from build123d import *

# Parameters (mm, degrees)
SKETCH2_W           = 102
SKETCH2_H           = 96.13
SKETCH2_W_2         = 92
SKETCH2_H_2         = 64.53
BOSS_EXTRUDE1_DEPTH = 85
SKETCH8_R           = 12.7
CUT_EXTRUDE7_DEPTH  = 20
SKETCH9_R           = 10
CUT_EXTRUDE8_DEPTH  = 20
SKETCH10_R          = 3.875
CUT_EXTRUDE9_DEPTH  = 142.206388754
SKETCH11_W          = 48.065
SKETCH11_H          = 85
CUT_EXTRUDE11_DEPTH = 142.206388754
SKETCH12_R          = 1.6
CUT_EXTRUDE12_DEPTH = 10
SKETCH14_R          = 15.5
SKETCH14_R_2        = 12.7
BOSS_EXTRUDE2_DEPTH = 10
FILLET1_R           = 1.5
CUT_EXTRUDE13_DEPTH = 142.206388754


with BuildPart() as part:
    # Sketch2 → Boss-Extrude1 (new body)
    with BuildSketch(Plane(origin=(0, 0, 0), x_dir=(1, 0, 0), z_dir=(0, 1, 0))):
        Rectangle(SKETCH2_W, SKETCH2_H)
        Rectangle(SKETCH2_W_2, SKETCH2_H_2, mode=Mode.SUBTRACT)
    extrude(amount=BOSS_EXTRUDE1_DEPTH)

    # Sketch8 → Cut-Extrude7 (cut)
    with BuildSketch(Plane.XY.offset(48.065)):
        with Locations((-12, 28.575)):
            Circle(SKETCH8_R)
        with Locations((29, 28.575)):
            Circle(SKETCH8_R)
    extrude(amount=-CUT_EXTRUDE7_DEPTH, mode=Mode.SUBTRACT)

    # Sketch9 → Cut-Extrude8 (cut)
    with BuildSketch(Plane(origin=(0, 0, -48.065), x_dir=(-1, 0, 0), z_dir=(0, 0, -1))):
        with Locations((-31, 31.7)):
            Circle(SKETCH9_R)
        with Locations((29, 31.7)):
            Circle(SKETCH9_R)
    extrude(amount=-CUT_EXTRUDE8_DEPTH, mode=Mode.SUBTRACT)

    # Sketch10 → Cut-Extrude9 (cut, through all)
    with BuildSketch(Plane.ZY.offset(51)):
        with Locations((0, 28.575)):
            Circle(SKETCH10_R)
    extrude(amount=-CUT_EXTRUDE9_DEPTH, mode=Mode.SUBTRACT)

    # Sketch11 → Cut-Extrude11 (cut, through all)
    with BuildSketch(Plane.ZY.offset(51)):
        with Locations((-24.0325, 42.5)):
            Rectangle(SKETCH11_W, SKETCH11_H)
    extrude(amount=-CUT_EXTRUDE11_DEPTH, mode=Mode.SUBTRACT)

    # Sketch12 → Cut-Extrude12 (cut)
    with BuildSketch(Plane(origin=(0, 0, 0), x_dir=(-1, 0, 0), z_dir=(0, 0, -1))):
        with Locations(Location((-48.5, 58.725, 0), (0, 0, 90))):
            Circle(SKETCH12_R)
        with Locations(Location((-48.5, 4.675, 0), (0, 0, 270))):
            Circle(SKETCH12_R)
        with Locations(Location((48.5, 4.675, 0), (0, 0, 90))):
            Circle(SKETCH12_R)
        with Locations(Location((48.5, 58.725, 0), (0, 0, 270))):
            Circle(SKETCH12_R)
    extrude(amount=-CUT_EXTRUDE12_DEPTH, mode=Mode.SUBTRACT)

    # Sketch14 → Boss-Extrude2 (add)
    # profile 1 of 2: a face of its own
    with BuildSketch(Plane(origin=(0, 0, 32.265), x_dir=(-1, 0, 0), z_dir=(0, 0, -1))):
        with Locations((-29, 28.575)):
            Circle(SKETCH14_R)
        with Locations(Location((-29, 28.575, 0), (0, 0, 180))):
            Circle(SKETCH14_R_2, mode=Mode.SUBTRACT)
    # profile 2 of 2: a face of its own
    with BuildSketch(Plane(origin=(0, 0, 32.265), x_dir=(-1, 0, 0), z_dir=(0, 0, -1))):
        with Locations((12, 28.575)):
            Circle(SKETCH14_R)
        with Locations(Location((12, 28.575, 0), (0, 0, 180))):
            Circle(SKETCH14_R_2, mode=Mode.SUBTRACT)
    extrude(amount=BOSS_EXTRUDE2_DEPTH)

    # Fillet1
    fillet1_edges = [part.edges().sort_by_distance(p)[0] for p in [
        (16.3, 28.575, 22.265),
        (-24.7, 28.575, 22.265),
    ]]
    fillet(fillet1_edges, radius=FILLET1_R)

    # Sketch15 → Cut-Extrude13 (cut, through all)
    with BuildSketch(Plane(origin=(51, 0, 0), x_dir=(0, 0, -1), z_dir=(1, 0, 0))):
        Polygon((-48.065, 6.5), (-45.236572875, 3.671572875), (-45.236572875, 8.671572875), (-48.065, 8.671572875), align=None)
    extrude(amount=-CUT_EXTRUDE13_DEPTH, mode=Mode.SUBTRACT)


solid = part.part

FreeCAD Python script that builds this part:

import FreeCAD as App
import Part
import Sketcher
from FreeCAD import Vector
Q = App.Units.Quantity


def edges_at(feature, points):
    """Names of the edges that pass closest to the given points."""
    edges = feature.Shape.Edges
    near = lambda p: min(range(len(edges)), key=lambda i: edges[i].distToShape(Part.Vertex(*p))[0])
    return sorted({f"Edge{near(p) + 1}" for p in points})

doc = App.newDocument("Part")
body = doc.addObject("PartDesign::Body", "Body")

sketch1 = body.newObject("Sketcher::SketchObject", "Sketch")
sketch1.AttachmentSupport = (doc.getObject("XZ_Plane"), [""])
sketch1.MapMode = "FlatFace"
sketch1.addGeometry(Part.LineSegment(Vector(-51, -48.065, 0), Vector(-51, 48.065, 0)), False)
sketch1.addGeometry(Part.LineSegment(Vector(-51, 48.065, 0), Vector(51, 48.065, 0)), False)
sketch1.addGeometry(Part.LineSegment(Vector(51, 48.065, 0), Vector(51, -48.065, 0)), False)
sketch1.addGeometry(Part.LineSegment(Vector(51, -48.065, 0), Vector(-51, -48.065, 0)), False)
sketch1.addGeometry(Part.LineSegment(Vector(46, 32.265, 0), Vector(-46, 32.265, 0)), False)
sketch1.addGeometry(Part.LineSegment(Vector(-46, 32.265, 0), Vector(-46, -32.265, 0)), False)
sketch1.addGeometry(Part.LineSegment(Vector(-46, -32.265, 0), Vector(46, -32.265, 0)), False)
sketch1.addGeometry(Part.LineSegment(Vector(46, -32.265, 0), Vector(46, 32.265, 0)), False)
sketch1.addConstraint(Sketcher.Constraint("Coincident", 0, 2, 1, 1))
sketch1.addConstraint(Sketcher.Constraint("Coincident", 1, 2, 2, 1))
sketch1.addConstraint(Sketcher.Constraint("Coincident", 2, 2, 3, 1))
sketch1.addConstraint(Sketcher.Constraint("Coincident", 3, 2, 0, 1))
sketch1.addConstraint(Sketcher.Constraint("Coincident", 4, 2, 5, 1))
sketch1.addConstraint(Sketcher.Constraint("Coincident", 5, 2, 6, 1))
sketch1.addConstraint(Sketcher.Constraint("Coincident", 6, 2, 7, 1))
sketch1.addConstraint(Sketcher.Constraint("Coincident", 7, 2, 4, 1))
sketch1.addConstraint(Sketcher.Constraint("Vertical", 0))
sketch1.addConstraint(Sketcher.Constraint("Horizontal", 1))
sketch1.addConstraint(Sketcher.Constraint("Vertical", 2))
sketch1.addConstraint(Sketcher.Constraint("Horizontal", 3))
sketch1.addConstraint(Sketcher.Constraint("Horizontal", 4))
sketch1.addConstraint(Sketcher.Constraint("Vertical", 5))
sketch1.addConstraint(Sketcher.Constraint("Horizontal", 6))
sketch1.addConstraint(Sketcher.Constraint("Vertical", 7))
sketch1.addConstraint(Sketcher.Constraint("Symmetric", 0, 2, 2, 2, -1, 1))
sketch1.addConstraint(Sketcher.Constraint("Symmetric", 4, 2, 6, 2, -1, 1))
sketch1.addConstraint(Sketcher.Constraint("DistanceX", 1, 1, 1, 2, Q("102 mm")))
sketch1.addConstraint(Sketcher.Constraint("DistanceX", 4, 2, 4, 1, Q("92 mm")))
sketch1.addConstraint(Sketcher.Constraint("DistanceY", 0, 1, 0, 2, Q("96.13 mm")))
sketch1.addConstraint(Sketcher.Constraint("DistanceY", 5, 2, 5, 1, Q("64.53 mm")))
pad1 = body.newObject("PartDesign::Pad", "Pad")
pad1.Profile = sketch1
pad1.Length = 85
pad1.Reversed = True

sketch2 = body.newObject("Sketcher::SketchObject", "Sketch001")
sketch2.AttachmentSupport = (doc.getObject("XY_Plane"), [""])
sketch2.MapMode = "FlatFace"
sketch2.AttachmentOffset = App.Placement(Vector(0, 0, 48.065), App.Rotation())
sketch2.addGeometry(Part.Circle(Vector(-12, 28.575, 0), Vector(0, 0, 1), 12.7), False)
sketch2.addGeometry(Part.Circle(Vector(29, 28.575, 0), Vector(0, 0, 1), 12.7), False)
sketch2.addConstraint(Sketcher.Constraint("Equal", 0, 1))
sketch2.addConstraint(Sketcher.Constraint("Horizontal", 0, 3, 1, 3))
sketch2.addConstraint(Sketcher.Constraint("Diameter", 0, Q("25.4 mm")))
sketch2.addConstraint(Sketcher.Constraint("DistanceX", 0, 3, -1, 1, Q("12 mm")))
sketch2.addConstraint(Sketcher.Constraint("DistanceX", -1, 1, 1, 3, Q("29 mm")))
sketch2.addConstraint(Sketcher.Constraint("DistanceY", -1, 1, 0, 3, Q("28.575 mm")))
pocket1 = body.newObject("PartDesign::Pocket", "Pocket")
pocket1.Profile = sketch2
pocket1.Length = 20

sketch3 = body.newObject("Sketcher::SketchObject", "Sketch002")
sketch3.AttachmentSupport = (doc.getObject("XY_Plane"), [""])
sketch3.MapMode = "FlatFace"
sketch3.AttachmentOffset = App.Placement(Vector(0, 0, -48.065), App.Rotation())
sketch3.addGeometry(Part.Circle(Vector(31, 31.7, 0), Vector(0, 0, 1), 10), False)
sketch3.addGeometry(Part.Circle(Vector(-29, 31.7, 0), Vector(0, 0, 1), 10), False)
sketch3.addConstraint(Sketcher.Constraint("Equal", 0, 1))
sketch3.addConstraint(Sketcher.Constraint("Horizontal", 0, 3, 1, 3))
sketch3.addConstraint(Sketcher.Constraint("Diameter", 0, Q("20 mm")))
sketch3.addConstraint(Sketcher.Constraint("DistanceX", -1, 1, 0, 3, Q("31 mm")))
sketch3.addConstraint(Sketcher.Constraint("DistanceX", 1, 3, -1, 1, Q("29 mm")))
sketch3.addConstraint(Sketcher.Constraint("DistanceY", -1, 1, 0, 3, Q("31.7 mm")))
pocket2 = body.newObject("PartDesign::Pocket", "Pocket001")
pocket2.Profile = sketch3
pocket2.Length = 20
pocket2.Reversed = True

sketch4 = body.newObject("Sketcher::SketchObject", "Sketch003")
sketch4.AttachmentSupport = (doc.getObject("YZ_Plane"), [""])
sketch4.MapMode = "FlatFace"
sketch4.AttachmentOffset = App.Placement(Vector(0, 0, -51), App.Rotation())
sketch4.addGeometry(Part.Circle(Vector(28.575, 0, 0), Vector(0, 0, 1), 3.875), False)
sketch4.addConstraint(Sketcher.Constraint("PointOnObject", 0, 3, -1))
sketch4.addConstraint(Sketcher.Constraint("Diameter", 0, Q("7.75 mm")))
sketch4.addConstraint(Sketcher.Constraint("DistanceX", -1, 1, 0, 3, Q("28.575 mm")))
pocket3 = body.newObject("PartDesign::Pocket", "Pocket002")
pocket3.Profile = sketch4
pocket3.Type = "ThroughAll"
pocket3.Reversed = True

sketch5 = body.newObject("Sketcher::SketchObject", "Sketch004")
sketch5.AttachmentSupport = (doc.getObject("YZ_Plane"), [""])
sketch5.MapMode = "FlatFace"
sketch5.AttachmentOffset = App.Placement(Vector(0, 0, -51), App.Rotation())
sketch5.addGeometry(Part.LineSegment(Vector(85, -48.065, 0), Vector(0, -48.065, 0)), False)
sketch5.addGeometry(Part.LineSegment(Vector(0, -48.065, 0), Vector(0, 0, 0)), False)
sketch5.addGeometry(Part.LineSegment(Vector(0, 0, 0), Vector(85, 0, 0)), False)
sketch5.addGeometry(Part.LineSegment(Vector(85, 0, 0), Vector(85, -48.065, 0)), False)
sketch5.addConstraint(Sketcher.Constraint("Coincident", 0, 2, 1, 1))
sketch5.addConstraint(Sketcher.Constraint("Coincident", 1, 2, 2, 1))
sketch5.addConstraint(Sketcher.Constraint("Coincident", 2, 2, 3, 1))
sketch5.addConstraint(Sketcher.Constraint("Coincident", 3, 2, 0, 1))
sketch5.addConstraint(Sketcher.Constraint("Horizontal", 0))
sketch5.addConstraint(Sketcher.Constraint("Vertical", 1))
sketch5.addConstraint(Sketcher.Constraint("Horizontal", 2))
sketch5.addConstraint(Sketcher.Constraint("Vertical", 3))
sketch5.addConstraint(Sketcher.Constraint("Coincident", 1, 2, -1, 1))
sketch5.addConstraint(Sketcher.Constraint("DistanceX", 0, 2, 0, 1, Q("85 mm")))
sketch5.addConstraint(Sketcher.Constraint("DistanceY", 1, 1, 1, 2, Q("48.065 mm")))
pocket4 = body.newObject("PartDesign::Pocket", "Pocket003")
pocket4.Profile = sketch5
pocket4.Type = "ThroughAll"
pocket4.Reversed = True

sketch6 = body.newObject("Sketcher::SketchObject", "Sketch005")
sketch6.AttachmentSupport = (doc.getObject("XY_Plane"), [""])
sketch6.MapMode = "FlatFace"
sketch6.addGeometry(Part.Circle(Vector(48.5, 58.725, 0), Vector(0, 0, 1), 1.6), False)
sketch6.addGeometry(Part.Circle(Vector(48.5, 4.675, 0), Vector(0, 0, 1), 1.6), False)
sketch6.addGeometry(Part.Circle(Vector(-48.5, 4.675, 0), Vector(0, 0, 1), 1.6), False)
sketch6.addGeometry(Part.Circle(Vector(-48.5, 58.725, 0), Vector(0, 0, 1), 1.6), False)
sketch6.addConstraint(Sketcher.Constraint("Equal", 0, 1))
sketch6.addConstraint(Sketcher.Constraint("Equal", 1, 2))
sketch6.addConstraint(Sketcher.Constraint("Equal", 2, 3))
sketch6.addConstraint(Sketcher.Constraint("Symmetric", 1, 3, 2, 3, -2))
sketch6.addConstraint(Sketcher.Constraint("Symmetric", 0, 3, 3, 3, -2))
sketch6.addConstraint(Sketcher.Constraint("Vertical", 0, 3, 1, 3))
sketch6.addConstraint(Sketcher.Constraint("Diameter", 0, Q("3.2 mm")))
sketch6.addConstraint(Sketcher.Constraint("DistanceX", 2, 3, 1, 3, Q("97 mm")))
sketch6.addConstraint(Sketcher.Constraint("DistanceY", 1, 3, 0, 3, Q("54.05 mm")))
sketch6.addConstraint(Sketcher.Constraint("DistanceY", -1, 1, 0, 3, Q("58.725 mm")))
pocket5 = body.newObject("PartDesign::Pocket", "Pocket004")
pocket5.Profile = sketch6
pocket5.Length = 10
pocket5.Reversed = True

sketch7 = body.newObject("Sketcher::SketchObject", "Sketch006")
sketch7.AttachmentSupport = (doc.getObject("XY_Plane"), [""])
sketch7.MapMode = "FlatFace"
sketch7.AttachmentOffset = App.Placement(Vector(0, 0, 32.265), App.Rotation())
sketch7.addGeometry(Part.Circle(Vector(29, 28.575, 0), Vector(0, 0, 1), 15.5), False)
sketch7.addGeometry(Part.Circle(Vector(29, 28.575, 0), Vector(0, 0, 1), 12.7), False)
sketch7.addGeometry(Part.Circle(Vector(-12, 28.575, 0), Vector(0, 0, 1), 15.5), False)
sketch7.addGeometry(Part.Circle(Vector(-12, 28.575, 0), Vector(0, 0, 1), 12.7), False)
sketch7.addConstraint(Sketcher.Constraint("Coincident", 1, 3, 0, 3))
sketch7.addConstraint(Sketcher.Constraint("Coincident", 3, 3, 2, 3))
sketch7.addConstraint(Sketcher.Constraint("Equal", 0, 2))
sketch7.addConstraint(Sketcher.Constraint("Equal", 1, 3))
sketch7.addConstraint(Sketcher.Constraint("Horizontal", 1, 3, 2, 3))
sketch7.addConstraint(Sketcher.Constraint("Diameter", 0, Q("31 mm")))
sketch7.addConstraint(Sketcher.Constraint("Diameter", 1, Q("25.4 mm")))
sketch7.addConstraint(Sketcher.Constraint("DistanceX", -1, 1, 0, 3, Q("29 mm")))
sketch7.addConstraint(Sketcher.Constraint("DistanceX", 2, 3, -1, 1, Q("12 mm")))
sketch7.addConstraint(Sketcher.Constraint("DistanceY", -1, 1, 0, 3, Q("28.575 mm")))
pad2 = body.newObject("PartDesign::Pad", "Pad001")
pad2.Profile = sketch7
pad2.Length = 10
pad2.Reversed = True
doc.recompute()

fillet = body.newObject("PartDesign::Fillet", "Fillet")
fillet.Base = (pad2, edges_at(pad2, [(16.3, 28.575, 22.265), (-24.7, 28.575, 22.265)]))
fillet.Radius = 1.5

sketch8 = body.newObject("Sketcher::SketchObject", "Sketch007")
sketch8.AttachmentSupport = (doc.getObject("YZ_Plane"), [""])
sketch8.MapMode = "FlatFace"
sketch8.AttachmentOffset = App.Placement(Vector(0, 0, 51), App.Rotation())
sketch8.addGeometry(Part.LineSegment(Vector(6.5, 48.065, 0), Vector(3.671573, 45.236573, 0)), False)
sketch8.addGeometry(Part.LineSegment(Vector(3.671573, 45.236573, 0), Vector(8.671573, 45.236573, 0)), False)
sketch8.addGeometry(Part.LineSegment(Vector(8.671573, 45.236573, 0), Vector(8.671573, 48.065, 0)), False)
sketch8.addGeometry(Part.LineSegment(Vector(8.671573, 48.065, 0), Vector(6.5, 48.065, 0)), False)
sketch8.addConstraint(Sketcher.Constraint("Coincident", 0, 2, 1, 1))
sketch8.addConstraint(Sketcher.Constraint("Coincident", 1, 2, 2, 1))
sketch8.addConstraint(Sketcher.Constraint("Coincident", 2, 2, 3, 1))
sketch8.addConstraint(Sketcher.Constraint("Coincident", 3, 2, 0, 1))
sketch8.addConstraint(Sketcher.Constraint("Horizontal", 1))
sketch8.addConstraint(Sketcher.Constraint("Vertical", 2))
sketch8.addConstraint(Sketcher.Constraint("Horizontal", 3))
sketch8.addConstraint(Sketcher.Constraint("DistanceX", 1, 1, 1, 2, Q("5 mm")))
sketch8.addConstraint(Sketcher.Constraint("Angle", 0, Q("-135 deg")))
sketch8.addConstraint(Sketcher.Constraint("Distance", 0, Q("4 mm")))
sketch8.addConstraint(Sketcher.Constraint("DistanceX", -1, 1, 3, 2, Q("6.5 mm")))
sketch8.addConstraint(Sketcher.Constraint("DistanceY", -1, 1, 2, 2, Q("48.065 mm")))
pocket6 = body.newObject("PartDesign::Pocket", "Pocket005")
pocket6.Profile = sketch8
pocket6.Type = "ThroughAll"

doc.recompute()
